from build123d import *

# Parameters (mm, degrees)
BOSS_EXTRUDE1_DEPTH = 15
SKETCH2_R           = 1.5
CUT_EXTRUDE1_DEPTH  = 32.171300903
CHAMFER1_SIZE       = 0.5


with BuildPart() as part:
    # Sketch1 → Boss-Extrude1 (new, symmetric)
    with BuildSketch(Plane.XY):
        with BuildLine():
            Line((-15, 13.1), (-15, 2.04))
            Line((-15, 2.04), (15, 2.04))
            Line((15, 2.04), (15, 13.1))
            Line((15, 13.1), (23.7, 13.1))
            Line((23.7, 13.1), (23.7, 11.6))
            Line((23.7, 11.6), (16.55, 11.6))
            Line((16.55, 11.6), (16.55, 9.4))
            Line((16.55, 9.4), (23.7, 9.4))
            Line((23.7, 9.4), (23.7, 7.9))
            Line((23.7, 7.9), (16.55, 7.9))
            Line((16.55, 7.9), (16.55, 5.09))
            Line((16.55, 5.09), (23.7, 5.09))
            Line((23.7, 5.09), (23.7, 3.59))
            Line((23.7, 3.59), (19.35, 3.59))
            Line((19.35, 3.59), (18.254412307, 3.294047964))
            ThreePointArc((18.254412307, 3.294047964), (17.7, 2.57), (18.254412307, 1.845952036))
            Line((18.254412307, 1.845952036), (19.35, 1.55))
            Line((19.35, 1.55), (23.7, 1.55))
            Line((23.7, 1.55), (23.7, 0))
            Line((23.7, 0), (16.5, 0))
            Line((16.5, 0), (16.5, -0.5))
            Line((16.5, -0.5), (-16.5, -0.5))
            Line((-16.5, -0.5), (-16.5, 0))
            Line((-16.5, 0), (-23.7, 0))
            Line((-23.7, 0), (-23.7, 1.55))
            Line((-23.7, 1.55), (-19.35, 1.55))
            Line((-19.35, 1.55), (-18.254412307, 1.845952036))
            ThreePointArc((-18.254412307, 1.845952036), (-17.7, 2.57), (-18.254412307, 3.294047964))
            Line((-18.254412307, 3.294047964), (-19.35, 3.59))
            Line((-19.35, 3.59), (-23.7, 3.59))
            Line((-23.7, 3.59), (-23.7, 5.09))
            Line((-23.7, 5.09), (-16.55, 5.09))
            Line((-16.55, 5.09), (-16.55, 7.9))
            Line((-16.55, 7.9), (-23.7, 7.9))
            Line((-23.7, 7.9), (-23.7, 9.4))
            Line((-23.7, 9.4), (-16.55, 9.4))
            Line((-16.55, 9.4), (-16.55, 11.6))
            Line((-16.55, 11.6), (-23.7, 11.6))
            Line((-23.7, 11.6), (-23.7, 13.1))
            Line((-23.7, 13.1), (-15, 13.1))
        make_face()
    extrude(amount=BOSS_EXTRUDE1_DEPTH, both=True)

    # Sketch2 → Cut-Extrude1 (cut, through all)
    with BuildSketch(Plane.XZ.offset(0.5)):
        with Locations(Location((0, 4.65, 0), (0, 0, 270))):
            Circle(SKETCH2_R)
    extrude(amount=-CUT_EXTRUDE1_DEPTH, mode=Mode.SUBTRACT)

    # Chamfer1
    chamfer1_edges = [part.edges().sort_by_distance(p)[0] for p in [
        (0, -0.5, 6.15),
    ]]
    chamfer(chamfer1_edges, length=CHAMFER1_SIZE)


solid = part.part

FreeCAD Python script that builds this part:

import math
import FreeCAD as App
import Part
import Sketcher
from FreeCAD import Vector
Q = App.Units.Quantity


def edges_at(feature, points):
    """Names of the edges that pass closest to the given points."""
    edges = feature.Shape.Edges
    near = lambda p: min(range(len(edges)), key=lambda i: edges[i].distToShape(Part.Vertex(*p))[0])
    return sorted({f"Edge{near(p) + 1}" for p in points})

doc = App.newDocument("Part")
body = doc.addObject("PartDesign::Body", "Body")

# Sketch on XY plane
sketch1 = body.newObject("Sketcher::SketchObject", "Sketch")
sketch1.AttachmentSupport = (doc.getObject("XY_Plane"), [""])
sketch1.MapMode = "FlatFace"
sketch1.addGeometry(Part.LineSegment(Vector(-15, 2, 0), Vector(-15, 13.1, 0)), False)
sketch1.addGeometry(Part.LineSegment(Vector(-15, 13.1, 0), Vector(-23.7, 13.1, 0)), False)
sketch1.addGeometry(Part.LineSegment(Vector(-23.7, 13.1, 0), Vector(-23.7, 11.6, 0)), False)
sketch1.addGeometry(Part.LineSegment(Vector(-23.7, 11.6, 0), Vector(-16.6, 11.6, 0)), False)
sketch1.addGeometry(Part.LineSegment(Vector(-16.6, 11.6, 0), Vector(-16.6, 9.4, 0)), False)
sketch1.addGeometry(Part.LineSegment(Vector(-16.6, 9.4, 0), Vector(-23.7, 9.4, 0)), False)
sketch1.addGeometry(Part.LineSegment(Vector(-23.7, 9.4, 0), Vector(-23.7, 7.9, 0)), False)
sketch1.addGeometry(Part.LineSegment(Vector(-23.7, 7.9, 0), Vector(-16.6, 7.9, 0)), False)
sketch1.addGeometry(Part.LineSegment(Vector(-16.6, 7.9, 0), Vector(-16.6, 5.1, 0)), False)
sketch1.addGeometry(Part.LineSegment(Vector(-16.6, 5.1, 0), Vector(-23.7, 5.1, 0)), False)
sketch1.addGeometry(Part.LineSegment(Vector(-23.7, 5.1, 0), Vector(-23.7, 3.6, 0)), False)
sketch1.addGeometry(Part.LineSegment(Vector(-23.7, 3.6, 0), Vector(-19.4, 3.6, 0)), False)
sketch1.addGeometry(Part.LineSegment(Vector(-19.4, 3.6, 0), Vector(-18.3, 3.3, 0)), False)
sketch1.addGeometry(Part.ArcOfCircle(Part.Circle(Vector(-18.4, 2.6, 0), Vector(0, 0, 1), 0.8), math.radians(-75), math.radians(75)), False)
sketch1.addGeometry(Part.LineSegment(Vector(-18.3, 1.8, 0), Vector(-19.4, 1.6, 0)), False)
sketch1.addGeometry(Part.LineSegment(Vector(-19.4, 1.6, 0), Vector(-23.7, 1.6, 0)), False)
sketch1.addGeometry(Part.LineSegment(Vector(-23.7, 1.6, 0), Vector(-23.7, 0, 0)), False)
sketch1.addGeometry(Part.LineSegment(Vector(-23.7, 0, 0), Vector(-16.5, 0, 0)), False)
sketch1.addGeometry(Part.LineSegment(Vector(-16.5, 0, 0), Vector(-16.5, -0.5, 0)), False)
sketch1.addGeometry(Part.LineSegment(Vector(-16.5, -0.5, 0), Vector(16.5, -0.5, 0)), False)
sketch1.addGeometry(Part.LineSegment(Vector(16.5, -0.5, 0), Vector(16.5, 0, 0)), False)
sketch1.addGeometry(Part.LineSegment(Vector(16.5, 0, 0), Vector(23.7, 0, 0)), False)
sketch1.addGeometry(Part.LineSegment(Vector(23.7, 0, 0), Vector(23.7, 1.6, 0)), False)
sketch1.addGeometry(Part.LineSegment(Vector(23.7, 1.6, 0), Vector(19.4, 1.6, 0)), False)
sketch1.addGeometry(Part.LineSegment(Vector(19.4, 1.6, 0), Vector(18.3, 1.8, 0)), False)
sketch1.addGeometry(Part.ArcOfCircle(Part.Circle(Vector(18.4, 2.6, 0), Vector(0, 0, 1), 0.8), math.radians(105), math.radians(255)), False)
sketch1.addGeometry(Part.LineSegment(Vector(18.3, 3.3, 0), Vector(19.4, 3.6, 0)), False)
sketch1.addGeometry(Part.LineSegment(Vector(19.4, 3.6, 0), Vector(23.7, 3.6, 0)), False)
sketch1.addGeometry(Part.LineSegment(Vector(23.7, 3.6, 0), Vector(23.7, 5.1, 0)), False)
sketch1.addGeometry(Part.LineSegment(Vector(23.7, 5.1, 0), Vector(16.6, 5.1, 0)), False)
sketch1.addGeometry(Part.LineSegment(Vector(16.6, 5.1, 0), Vector(16.6, 7.9, 0)), False)
sketch1.addGeometry(Part.LineSegment(Vector(16.6, 7.9, 0), Vector(23.7, 7.9, 0)), False)
sketch1.addGeometry(Part.LineSegment(Vector(23.7, 7.9, 0), Vector(23.7, 9.4, 0)), False)
sketch1.addGeometry(Part.LineSegment(Vector(23.7, 9.4, 0), Vector(16.6, 9.4, 0)), False)
sketch1.addGeometry(Part.LineSegment(Vector(16.6, 9.4, 0), Vector(16.6, 11.6, 0)), False)
sketch1.addGeometry(Part.LineSegment(Vector(16.6, 11.6, 0), Vector(23.7, 11.6, 0)), False)
sketch1.addGeometry(Part.LineSegment(Vector(23.7, 11.6, 0), Vector(23.7, 13.1, 0)), False)
sketch1.addGeometry(Part.LineSegment(Vector(23.7, 13.1, 0), Vector(15, 13.1, 0)), False)
sketch1.addGeometry(Part.LineSegment(Vector(15, 13.1, 0), Vector(15, 2, 0)), False)
sketch1.addGeometry(Part.LineSegment(Vector(15, 2, 0), Vector(-15, 2, 0)), False)
sketch1.addConstraint(Sketcher.Constraint("Coincident", 0, 2, 1, 1))
sketch1.addConstraint(Sketcher.Constraint("Coincident", 1, 2, 2, 1))
sketch1.addConstraint(Sketcher.Constraint("Coincident", 2, 2, 3, 1))
sketch1.addConstraint(Sketcher.Constraint("Coincident", 3, 2, 4, 1))
sketch1.addConstraint(Sketcher.Constraint("Coincident", 4, 2, 5, 1))
sketch1.addConstraint(Sketcher.Constraint("Coincident", 5, 2, 6, 1))
sketch1.addConstraint(Sketcher.Constraint("Coincident", 6, 2, 7, 1))
sketch1.addConstraint(Sketcher.Constraint("Coincident", 7, 2, 8, 1))
sketch1.addConstraint(Sketcher.Constraint("Coincident", 8, 2, 9, 1))
sketch1.addConstraint(Sketcher.Constraint("Coincident", 9, 2, 10, 1))
sketch1.addConstraint(Sketcher.Constraint("Coincident", 10, 2, 11, 1))
sketch1.addConstraint(Sketcher.Constraint("Coincident", 11, 2, 12, 1))
sketch1.addConstraint(Sketcher.Constraint("Tangent", 12, 2, 13, 2))
sketch1.addConstraint(Sketcher.Constraint("Tangent", 13, 1, 14, 1))
sketch1.addConstraint(Sketcher.Constraint("Coincident", 14, 2, 15, 1))
sketch1.addConstraint(Sketcher.Constraint("Coincident", 15, 2, 16, 1))
sketch1.addConstraint(Sketcher.Constraint("Coincident", 16, 2, 17, 1))
sketch1.addConstraint(Sketcher.Constraint("Coincident", 17, 2, 18, 1))
sketch1.addConstraint(Sketcher.Constraint("Coincident", 18, 2, 19, 1))
sketch1.addConstraint(Sketcher.Constraint("Coincident", 19, 2, 20, 1))
sketch1.addConstraint(Sketcher.Constraint("Coincident", 20, 2, 21, 1))
sketch1.addConstraint(Sketcher.Constraint("Coincident", 21, 2, 22, 1))
sketch1.addConstraint(Sketcher.Constraint("Coincident", 22, 2, 23, 1))
sketch1.addConstraint(Sketcher.Constraint("Coincident", 23, 2, 24, 1))
sketch1.addConstraint(Sketcher.Constraint("Tangent", 24, 2, 25, 2))
sketch1.addConstraint(Sketcher.Constraint("Tangent", 25, 1, 26, 1))
sketch1.addConstraint(Sketcher.Constraint("Coincident", 26, 2, 27, 1))
sketch1.addConstraint(Sketcher.Constraint("Coincident", 27, 2, 28, 1))
sketch1.addConstraint(Sketcher.Constraint("Coincident", 28, 2, 29, 1))
sketch1.addConstraint(Sketcher.Constraint("Coincident", 29, 2, 30, 1))
sketch1.addConstraint(Sketcher.Constraint("Coincident", 30, 2, 31, 1))
sketch1.addConstraint(Sketcher.Constraint("Coincident", 31, 2, 32, 1))
sketch1.addConstraint(Sketcher.Constraint("Coincident", 32, 2, 33, 1))
sketch1.addConstraint(Sketcher.Constraint("Coincident", 33, 2, 34, 1))
sketch1.addConstraint(Sketcher.Constraint("Coincident", 34, 2, 35, 1))
sketch1.addConstraint(Sketcher.Constraint("Coincident", 35, 2, 36, 1))
sketch1.addConstraint(Sketcher.Constraint("Coincident", 36, 2, 37, 1))
sketch1.addConstraint(Sketcher.Constraint("Coincident", 37, 2, 38, 1))
sketch1.addConstraint(Sketcher.Constraint("Coincident", 38, 2, 39, 1))
sketch1.addConstraint(Sketcher.Constraint("Coincident", 39, 2, 0, 1))
sketch1.addConstraint(Sketcher.Constraint("Vertical", 0))
sketch1.addConstraint(Sketcher.Constraint("Horizontal", 1))
sketch1.addConstraint(Sketcher.Constraint("Vertical", 2))
sketch1.addConstraint(Sketcher.Constraint("Horizontal", 3))
sketch1.addConstraint(Sketcher.Constraint("Vertical", 4))
sketch1.addConstraint(Sketcher.Constraint("Horizontal", 5))
sketch1.addConstraint(Sketcher.Constraint("Vertical", 6))
sketch1.addConstraint(Sketcher.Constraint("Horizontal", 7))
sketch1.addConstraint(Sketcher.Constraint("Vertical", 8))
sketch1.addConstraint(Sketcher.Constraint("Horizontal", 9))
sketch1.addConstraint(Sketcher.Constraint("Vertical", 10))
sketch1.addConstraint(Sketcher.Constraint("Horizontal", 11))
sketch1.addConstraint(Sketcher.Constraint("Horizontal", 15))
sketch1.addConstraint(Sketcher.Constraint("Vertical", 16))
sketch1.addConstraint(Sketcher.Constraint("Horizontal", 17))
sketch1.addConstraint(Sketcher.Constraint("Vertical", 18))
sketch1.addConstraint(Sketcher.Constraint("Horizontal", 19))
sketch1.addConstraint(Sketcher.Constraint("Vertical", 20))
sketch1.addConstraint(Sketcher.Constraint("Horizontal", 21))
sketch1.addConstraint(Sketcher.Constraint("Vertical", 22))
sketch1.addConstraint(Sketcher.Constraint("Horizontal", 23))
sketch1.addConstraint(Sketcher.Constraint("Horizontal", 27))
sketch1.addConstraint(Sketcher.Constraint("Vertical", 28))
sketch1.addConstraint(Sketcher.Constraint("Horizontal", 29))
sketch1.addConstraint(Sketcher.Constraint("Vertical", 30))
sketch1.addConstraint(Sketcher.Constraint("Horizontal", 31))
sketch1.addConstraint(Sketcher.Constraint("Vertical", 32))
sketch1.addConstraint(Sketcher.Constraint("Horizontal", 33))
sketch1.addConstraint(Sketcher.Constraint("Vertical", 34))
sketch1.addConstraint(Sketcher.Constraint("Horizontal", 35))
sketch1.addConstraint(Sketcher.Constraint("Vertical", 36))
sketch1.addConstraint(Sketcher.Constraint("Horizontal", 37))
sketch1.addConstraint(Sketcher.Constraint("Vertical", 38))
sketch1.addConstraint(Sketcher.Constraint("Horizontal", 39))
sketch1.addConstraint(Sketcher.Constraint("Equal", 13, 25))
sketch1.addConstraint(Sketcher.Constraint("Symmetric", 17, 2, 20, 2, -1, 1))
sketch1.addConstraint(Sketcher.Constraint("Symmetric", 13, 3, 25, 3, -2))
sketch1.addConstraint(Sketcher.Constraint("Symmetric", 16, 2, 21, 2, -2))
sketch1.addConstraint(Sketcher.Constraint("Symmetric", 14, 2, 23, 2, -2))
sketch1.addConstraint(Sketcher.Constraint("Symmetric", 11, 2, 26, 2, -2))
sketch1.addConstraint(Sketcher.Constraint("Symmetric", 9, 2, 28, 2, -2))
sketch1.addConstraint(Sketcher.Constraint("Symmetric", 7, 2, 30, 2, -2))
sketch1.addConstraint(Sketcher.Constraint("Symmetric", 5, 2, 32, 2, -2))
sketch1.addConstraint(Sketcher.Constraint("Symmetric", 3, 2, 34, 2, -2))
sketch1.addConstraint(Sketcher.Constraint("Symmetric", 1, 2, 36, 2, -2))
sketch1.addConstraint(Sketcher.Constraint("Parallel", 12, 24))
sketch1.addConstraint(Sketcher.Constraint("Vertical", 2, 2, 5, 2))
sketch1.addConstraint(Sketcher.Constraint("Vertical", 4, 2, 7, 2))
sketch1.addConstraint(Sketcher.Constraint("Vertical", 6, 2, 9, 2))
sketch1.addConstraint(Sketcher.Constraint("Vertical", 11, 2, 14, 2))
sketch1.addConstraint(Sketcher.Constraint("Vertical", 10, 2, 15, 2))
sketch1.addConstraint(Sketcher.Constraint("Equal", 1, 37))
sketch1.addConstraint(Sketcher.Constraint("Equal", 2, 6))
sketch1.addConstraint(Sketcher.Constraint("Equal", 6, 10))
sketch1.addConstraint(Sketcher.Constraint("DistanceX", 19, 1, 19, 2, Q("33 mm")))
sketch1.addConstraint(Sketcher.Constraint("DistanceX", 39, 2, 39, 1, Q("30 mm")))
sketch1.addConstraint(Sketcher.Constraint("Radius", 13, Q("0.75 mm")))
sketch1.addConstraint(Sketcher.Constraint("DistanceX", 1, 2, 1, 1, Q("8.7 mm")))
sketch1.addConstraint(Sketcher.Constraint("DistanceY", 2, 2, 2, 1, Q("1.5 mm")))
sketch1.addConstraint(Sketcher.Constraint("DistanceY", 4, 2, 4, 1, Q("2.2 mm")))
sketch1.addConstraint(Sketcher.Constraint("DistanceY", 18, 2, 18, 1, Q("0.5 mm")))
sketch1.addConstraint(Sketcher.Constraint("DistanceX", 3, 2, 25, 3, Q("35 mm")))
sketch1.addConstraint(Sketcher.Constraint("DistanceX", 3, 1, 3, 2, Q("7.15 mm")))
sketch1.addConstraint(Sketcher.Constraint("DistanceX", 11, 1, 11, 2, Q("4.35 mm")))
sketch1.addConstraint(Sketcher.Constraint("DistanceY", 0, 1, 0, 2, Q("11.06 mm")))
sketch1.addConstraint(Sketcher.Constraint("DistanceY", 8, 2, 8, 1, Q("2.81 mm")))
sketch1.addConstraint(Sketcher.Constraint("DistanceY", 16, 2, 16, 1, Q("1.55 mm")))
sketch1.addConstraint(Sketcher.Constraint("DistanceY", -1, 1, 0, 2, Q("13.1 mm")))
pad1 = body.newObject("PartDesign::Pad", "Pad")
pad1.Profile = sketch1
pad1.Length = 30
pad1.Midplane = True

# Sketch on XZ plane
sketch2 = body.newObject("Sketcher::SketchObject", "Sketch001")
sketch2.AttachmentSupport = (doc.getObject("XZ_Plane"), [""])
sketch2.MapMode = "FlatFace"
sketch2.AttachmentOffset = App.Placement(Vector(0, 0, 0.5), App.Rotation())
sketch2.addGeometry(Part.Circle(Vector(0, 4.7, 0), Vector(0, 0, 1), 1.5), False)
sketch2.addConstraint(Sketcher.Constraint("PointOnObject", 0, 3, -2))
sketch2.addConstraint(Sketcher.Constraint("Diameter", 0, Q("3 mm")))
sketch2.addConstraint(Sketcher.Constraint("DistanceY", -1, 1, 0, 3, Q("4.65 mm")))
pocket1 = body.newObject("PartDesign::Pocket", "Pocket")
pocket1.Profile = sketch2
pocket1.Type = "ThroughAll"
doc.recompute()

chamfer = body.newObject("PartDesign::Chamfer", "Chamfer")
chamfer.Base = (pocket1, edges_at(pocket1, [(0, -0.5, 6.15)]))
chamfer.Size = 0.5

doc.recompute()
